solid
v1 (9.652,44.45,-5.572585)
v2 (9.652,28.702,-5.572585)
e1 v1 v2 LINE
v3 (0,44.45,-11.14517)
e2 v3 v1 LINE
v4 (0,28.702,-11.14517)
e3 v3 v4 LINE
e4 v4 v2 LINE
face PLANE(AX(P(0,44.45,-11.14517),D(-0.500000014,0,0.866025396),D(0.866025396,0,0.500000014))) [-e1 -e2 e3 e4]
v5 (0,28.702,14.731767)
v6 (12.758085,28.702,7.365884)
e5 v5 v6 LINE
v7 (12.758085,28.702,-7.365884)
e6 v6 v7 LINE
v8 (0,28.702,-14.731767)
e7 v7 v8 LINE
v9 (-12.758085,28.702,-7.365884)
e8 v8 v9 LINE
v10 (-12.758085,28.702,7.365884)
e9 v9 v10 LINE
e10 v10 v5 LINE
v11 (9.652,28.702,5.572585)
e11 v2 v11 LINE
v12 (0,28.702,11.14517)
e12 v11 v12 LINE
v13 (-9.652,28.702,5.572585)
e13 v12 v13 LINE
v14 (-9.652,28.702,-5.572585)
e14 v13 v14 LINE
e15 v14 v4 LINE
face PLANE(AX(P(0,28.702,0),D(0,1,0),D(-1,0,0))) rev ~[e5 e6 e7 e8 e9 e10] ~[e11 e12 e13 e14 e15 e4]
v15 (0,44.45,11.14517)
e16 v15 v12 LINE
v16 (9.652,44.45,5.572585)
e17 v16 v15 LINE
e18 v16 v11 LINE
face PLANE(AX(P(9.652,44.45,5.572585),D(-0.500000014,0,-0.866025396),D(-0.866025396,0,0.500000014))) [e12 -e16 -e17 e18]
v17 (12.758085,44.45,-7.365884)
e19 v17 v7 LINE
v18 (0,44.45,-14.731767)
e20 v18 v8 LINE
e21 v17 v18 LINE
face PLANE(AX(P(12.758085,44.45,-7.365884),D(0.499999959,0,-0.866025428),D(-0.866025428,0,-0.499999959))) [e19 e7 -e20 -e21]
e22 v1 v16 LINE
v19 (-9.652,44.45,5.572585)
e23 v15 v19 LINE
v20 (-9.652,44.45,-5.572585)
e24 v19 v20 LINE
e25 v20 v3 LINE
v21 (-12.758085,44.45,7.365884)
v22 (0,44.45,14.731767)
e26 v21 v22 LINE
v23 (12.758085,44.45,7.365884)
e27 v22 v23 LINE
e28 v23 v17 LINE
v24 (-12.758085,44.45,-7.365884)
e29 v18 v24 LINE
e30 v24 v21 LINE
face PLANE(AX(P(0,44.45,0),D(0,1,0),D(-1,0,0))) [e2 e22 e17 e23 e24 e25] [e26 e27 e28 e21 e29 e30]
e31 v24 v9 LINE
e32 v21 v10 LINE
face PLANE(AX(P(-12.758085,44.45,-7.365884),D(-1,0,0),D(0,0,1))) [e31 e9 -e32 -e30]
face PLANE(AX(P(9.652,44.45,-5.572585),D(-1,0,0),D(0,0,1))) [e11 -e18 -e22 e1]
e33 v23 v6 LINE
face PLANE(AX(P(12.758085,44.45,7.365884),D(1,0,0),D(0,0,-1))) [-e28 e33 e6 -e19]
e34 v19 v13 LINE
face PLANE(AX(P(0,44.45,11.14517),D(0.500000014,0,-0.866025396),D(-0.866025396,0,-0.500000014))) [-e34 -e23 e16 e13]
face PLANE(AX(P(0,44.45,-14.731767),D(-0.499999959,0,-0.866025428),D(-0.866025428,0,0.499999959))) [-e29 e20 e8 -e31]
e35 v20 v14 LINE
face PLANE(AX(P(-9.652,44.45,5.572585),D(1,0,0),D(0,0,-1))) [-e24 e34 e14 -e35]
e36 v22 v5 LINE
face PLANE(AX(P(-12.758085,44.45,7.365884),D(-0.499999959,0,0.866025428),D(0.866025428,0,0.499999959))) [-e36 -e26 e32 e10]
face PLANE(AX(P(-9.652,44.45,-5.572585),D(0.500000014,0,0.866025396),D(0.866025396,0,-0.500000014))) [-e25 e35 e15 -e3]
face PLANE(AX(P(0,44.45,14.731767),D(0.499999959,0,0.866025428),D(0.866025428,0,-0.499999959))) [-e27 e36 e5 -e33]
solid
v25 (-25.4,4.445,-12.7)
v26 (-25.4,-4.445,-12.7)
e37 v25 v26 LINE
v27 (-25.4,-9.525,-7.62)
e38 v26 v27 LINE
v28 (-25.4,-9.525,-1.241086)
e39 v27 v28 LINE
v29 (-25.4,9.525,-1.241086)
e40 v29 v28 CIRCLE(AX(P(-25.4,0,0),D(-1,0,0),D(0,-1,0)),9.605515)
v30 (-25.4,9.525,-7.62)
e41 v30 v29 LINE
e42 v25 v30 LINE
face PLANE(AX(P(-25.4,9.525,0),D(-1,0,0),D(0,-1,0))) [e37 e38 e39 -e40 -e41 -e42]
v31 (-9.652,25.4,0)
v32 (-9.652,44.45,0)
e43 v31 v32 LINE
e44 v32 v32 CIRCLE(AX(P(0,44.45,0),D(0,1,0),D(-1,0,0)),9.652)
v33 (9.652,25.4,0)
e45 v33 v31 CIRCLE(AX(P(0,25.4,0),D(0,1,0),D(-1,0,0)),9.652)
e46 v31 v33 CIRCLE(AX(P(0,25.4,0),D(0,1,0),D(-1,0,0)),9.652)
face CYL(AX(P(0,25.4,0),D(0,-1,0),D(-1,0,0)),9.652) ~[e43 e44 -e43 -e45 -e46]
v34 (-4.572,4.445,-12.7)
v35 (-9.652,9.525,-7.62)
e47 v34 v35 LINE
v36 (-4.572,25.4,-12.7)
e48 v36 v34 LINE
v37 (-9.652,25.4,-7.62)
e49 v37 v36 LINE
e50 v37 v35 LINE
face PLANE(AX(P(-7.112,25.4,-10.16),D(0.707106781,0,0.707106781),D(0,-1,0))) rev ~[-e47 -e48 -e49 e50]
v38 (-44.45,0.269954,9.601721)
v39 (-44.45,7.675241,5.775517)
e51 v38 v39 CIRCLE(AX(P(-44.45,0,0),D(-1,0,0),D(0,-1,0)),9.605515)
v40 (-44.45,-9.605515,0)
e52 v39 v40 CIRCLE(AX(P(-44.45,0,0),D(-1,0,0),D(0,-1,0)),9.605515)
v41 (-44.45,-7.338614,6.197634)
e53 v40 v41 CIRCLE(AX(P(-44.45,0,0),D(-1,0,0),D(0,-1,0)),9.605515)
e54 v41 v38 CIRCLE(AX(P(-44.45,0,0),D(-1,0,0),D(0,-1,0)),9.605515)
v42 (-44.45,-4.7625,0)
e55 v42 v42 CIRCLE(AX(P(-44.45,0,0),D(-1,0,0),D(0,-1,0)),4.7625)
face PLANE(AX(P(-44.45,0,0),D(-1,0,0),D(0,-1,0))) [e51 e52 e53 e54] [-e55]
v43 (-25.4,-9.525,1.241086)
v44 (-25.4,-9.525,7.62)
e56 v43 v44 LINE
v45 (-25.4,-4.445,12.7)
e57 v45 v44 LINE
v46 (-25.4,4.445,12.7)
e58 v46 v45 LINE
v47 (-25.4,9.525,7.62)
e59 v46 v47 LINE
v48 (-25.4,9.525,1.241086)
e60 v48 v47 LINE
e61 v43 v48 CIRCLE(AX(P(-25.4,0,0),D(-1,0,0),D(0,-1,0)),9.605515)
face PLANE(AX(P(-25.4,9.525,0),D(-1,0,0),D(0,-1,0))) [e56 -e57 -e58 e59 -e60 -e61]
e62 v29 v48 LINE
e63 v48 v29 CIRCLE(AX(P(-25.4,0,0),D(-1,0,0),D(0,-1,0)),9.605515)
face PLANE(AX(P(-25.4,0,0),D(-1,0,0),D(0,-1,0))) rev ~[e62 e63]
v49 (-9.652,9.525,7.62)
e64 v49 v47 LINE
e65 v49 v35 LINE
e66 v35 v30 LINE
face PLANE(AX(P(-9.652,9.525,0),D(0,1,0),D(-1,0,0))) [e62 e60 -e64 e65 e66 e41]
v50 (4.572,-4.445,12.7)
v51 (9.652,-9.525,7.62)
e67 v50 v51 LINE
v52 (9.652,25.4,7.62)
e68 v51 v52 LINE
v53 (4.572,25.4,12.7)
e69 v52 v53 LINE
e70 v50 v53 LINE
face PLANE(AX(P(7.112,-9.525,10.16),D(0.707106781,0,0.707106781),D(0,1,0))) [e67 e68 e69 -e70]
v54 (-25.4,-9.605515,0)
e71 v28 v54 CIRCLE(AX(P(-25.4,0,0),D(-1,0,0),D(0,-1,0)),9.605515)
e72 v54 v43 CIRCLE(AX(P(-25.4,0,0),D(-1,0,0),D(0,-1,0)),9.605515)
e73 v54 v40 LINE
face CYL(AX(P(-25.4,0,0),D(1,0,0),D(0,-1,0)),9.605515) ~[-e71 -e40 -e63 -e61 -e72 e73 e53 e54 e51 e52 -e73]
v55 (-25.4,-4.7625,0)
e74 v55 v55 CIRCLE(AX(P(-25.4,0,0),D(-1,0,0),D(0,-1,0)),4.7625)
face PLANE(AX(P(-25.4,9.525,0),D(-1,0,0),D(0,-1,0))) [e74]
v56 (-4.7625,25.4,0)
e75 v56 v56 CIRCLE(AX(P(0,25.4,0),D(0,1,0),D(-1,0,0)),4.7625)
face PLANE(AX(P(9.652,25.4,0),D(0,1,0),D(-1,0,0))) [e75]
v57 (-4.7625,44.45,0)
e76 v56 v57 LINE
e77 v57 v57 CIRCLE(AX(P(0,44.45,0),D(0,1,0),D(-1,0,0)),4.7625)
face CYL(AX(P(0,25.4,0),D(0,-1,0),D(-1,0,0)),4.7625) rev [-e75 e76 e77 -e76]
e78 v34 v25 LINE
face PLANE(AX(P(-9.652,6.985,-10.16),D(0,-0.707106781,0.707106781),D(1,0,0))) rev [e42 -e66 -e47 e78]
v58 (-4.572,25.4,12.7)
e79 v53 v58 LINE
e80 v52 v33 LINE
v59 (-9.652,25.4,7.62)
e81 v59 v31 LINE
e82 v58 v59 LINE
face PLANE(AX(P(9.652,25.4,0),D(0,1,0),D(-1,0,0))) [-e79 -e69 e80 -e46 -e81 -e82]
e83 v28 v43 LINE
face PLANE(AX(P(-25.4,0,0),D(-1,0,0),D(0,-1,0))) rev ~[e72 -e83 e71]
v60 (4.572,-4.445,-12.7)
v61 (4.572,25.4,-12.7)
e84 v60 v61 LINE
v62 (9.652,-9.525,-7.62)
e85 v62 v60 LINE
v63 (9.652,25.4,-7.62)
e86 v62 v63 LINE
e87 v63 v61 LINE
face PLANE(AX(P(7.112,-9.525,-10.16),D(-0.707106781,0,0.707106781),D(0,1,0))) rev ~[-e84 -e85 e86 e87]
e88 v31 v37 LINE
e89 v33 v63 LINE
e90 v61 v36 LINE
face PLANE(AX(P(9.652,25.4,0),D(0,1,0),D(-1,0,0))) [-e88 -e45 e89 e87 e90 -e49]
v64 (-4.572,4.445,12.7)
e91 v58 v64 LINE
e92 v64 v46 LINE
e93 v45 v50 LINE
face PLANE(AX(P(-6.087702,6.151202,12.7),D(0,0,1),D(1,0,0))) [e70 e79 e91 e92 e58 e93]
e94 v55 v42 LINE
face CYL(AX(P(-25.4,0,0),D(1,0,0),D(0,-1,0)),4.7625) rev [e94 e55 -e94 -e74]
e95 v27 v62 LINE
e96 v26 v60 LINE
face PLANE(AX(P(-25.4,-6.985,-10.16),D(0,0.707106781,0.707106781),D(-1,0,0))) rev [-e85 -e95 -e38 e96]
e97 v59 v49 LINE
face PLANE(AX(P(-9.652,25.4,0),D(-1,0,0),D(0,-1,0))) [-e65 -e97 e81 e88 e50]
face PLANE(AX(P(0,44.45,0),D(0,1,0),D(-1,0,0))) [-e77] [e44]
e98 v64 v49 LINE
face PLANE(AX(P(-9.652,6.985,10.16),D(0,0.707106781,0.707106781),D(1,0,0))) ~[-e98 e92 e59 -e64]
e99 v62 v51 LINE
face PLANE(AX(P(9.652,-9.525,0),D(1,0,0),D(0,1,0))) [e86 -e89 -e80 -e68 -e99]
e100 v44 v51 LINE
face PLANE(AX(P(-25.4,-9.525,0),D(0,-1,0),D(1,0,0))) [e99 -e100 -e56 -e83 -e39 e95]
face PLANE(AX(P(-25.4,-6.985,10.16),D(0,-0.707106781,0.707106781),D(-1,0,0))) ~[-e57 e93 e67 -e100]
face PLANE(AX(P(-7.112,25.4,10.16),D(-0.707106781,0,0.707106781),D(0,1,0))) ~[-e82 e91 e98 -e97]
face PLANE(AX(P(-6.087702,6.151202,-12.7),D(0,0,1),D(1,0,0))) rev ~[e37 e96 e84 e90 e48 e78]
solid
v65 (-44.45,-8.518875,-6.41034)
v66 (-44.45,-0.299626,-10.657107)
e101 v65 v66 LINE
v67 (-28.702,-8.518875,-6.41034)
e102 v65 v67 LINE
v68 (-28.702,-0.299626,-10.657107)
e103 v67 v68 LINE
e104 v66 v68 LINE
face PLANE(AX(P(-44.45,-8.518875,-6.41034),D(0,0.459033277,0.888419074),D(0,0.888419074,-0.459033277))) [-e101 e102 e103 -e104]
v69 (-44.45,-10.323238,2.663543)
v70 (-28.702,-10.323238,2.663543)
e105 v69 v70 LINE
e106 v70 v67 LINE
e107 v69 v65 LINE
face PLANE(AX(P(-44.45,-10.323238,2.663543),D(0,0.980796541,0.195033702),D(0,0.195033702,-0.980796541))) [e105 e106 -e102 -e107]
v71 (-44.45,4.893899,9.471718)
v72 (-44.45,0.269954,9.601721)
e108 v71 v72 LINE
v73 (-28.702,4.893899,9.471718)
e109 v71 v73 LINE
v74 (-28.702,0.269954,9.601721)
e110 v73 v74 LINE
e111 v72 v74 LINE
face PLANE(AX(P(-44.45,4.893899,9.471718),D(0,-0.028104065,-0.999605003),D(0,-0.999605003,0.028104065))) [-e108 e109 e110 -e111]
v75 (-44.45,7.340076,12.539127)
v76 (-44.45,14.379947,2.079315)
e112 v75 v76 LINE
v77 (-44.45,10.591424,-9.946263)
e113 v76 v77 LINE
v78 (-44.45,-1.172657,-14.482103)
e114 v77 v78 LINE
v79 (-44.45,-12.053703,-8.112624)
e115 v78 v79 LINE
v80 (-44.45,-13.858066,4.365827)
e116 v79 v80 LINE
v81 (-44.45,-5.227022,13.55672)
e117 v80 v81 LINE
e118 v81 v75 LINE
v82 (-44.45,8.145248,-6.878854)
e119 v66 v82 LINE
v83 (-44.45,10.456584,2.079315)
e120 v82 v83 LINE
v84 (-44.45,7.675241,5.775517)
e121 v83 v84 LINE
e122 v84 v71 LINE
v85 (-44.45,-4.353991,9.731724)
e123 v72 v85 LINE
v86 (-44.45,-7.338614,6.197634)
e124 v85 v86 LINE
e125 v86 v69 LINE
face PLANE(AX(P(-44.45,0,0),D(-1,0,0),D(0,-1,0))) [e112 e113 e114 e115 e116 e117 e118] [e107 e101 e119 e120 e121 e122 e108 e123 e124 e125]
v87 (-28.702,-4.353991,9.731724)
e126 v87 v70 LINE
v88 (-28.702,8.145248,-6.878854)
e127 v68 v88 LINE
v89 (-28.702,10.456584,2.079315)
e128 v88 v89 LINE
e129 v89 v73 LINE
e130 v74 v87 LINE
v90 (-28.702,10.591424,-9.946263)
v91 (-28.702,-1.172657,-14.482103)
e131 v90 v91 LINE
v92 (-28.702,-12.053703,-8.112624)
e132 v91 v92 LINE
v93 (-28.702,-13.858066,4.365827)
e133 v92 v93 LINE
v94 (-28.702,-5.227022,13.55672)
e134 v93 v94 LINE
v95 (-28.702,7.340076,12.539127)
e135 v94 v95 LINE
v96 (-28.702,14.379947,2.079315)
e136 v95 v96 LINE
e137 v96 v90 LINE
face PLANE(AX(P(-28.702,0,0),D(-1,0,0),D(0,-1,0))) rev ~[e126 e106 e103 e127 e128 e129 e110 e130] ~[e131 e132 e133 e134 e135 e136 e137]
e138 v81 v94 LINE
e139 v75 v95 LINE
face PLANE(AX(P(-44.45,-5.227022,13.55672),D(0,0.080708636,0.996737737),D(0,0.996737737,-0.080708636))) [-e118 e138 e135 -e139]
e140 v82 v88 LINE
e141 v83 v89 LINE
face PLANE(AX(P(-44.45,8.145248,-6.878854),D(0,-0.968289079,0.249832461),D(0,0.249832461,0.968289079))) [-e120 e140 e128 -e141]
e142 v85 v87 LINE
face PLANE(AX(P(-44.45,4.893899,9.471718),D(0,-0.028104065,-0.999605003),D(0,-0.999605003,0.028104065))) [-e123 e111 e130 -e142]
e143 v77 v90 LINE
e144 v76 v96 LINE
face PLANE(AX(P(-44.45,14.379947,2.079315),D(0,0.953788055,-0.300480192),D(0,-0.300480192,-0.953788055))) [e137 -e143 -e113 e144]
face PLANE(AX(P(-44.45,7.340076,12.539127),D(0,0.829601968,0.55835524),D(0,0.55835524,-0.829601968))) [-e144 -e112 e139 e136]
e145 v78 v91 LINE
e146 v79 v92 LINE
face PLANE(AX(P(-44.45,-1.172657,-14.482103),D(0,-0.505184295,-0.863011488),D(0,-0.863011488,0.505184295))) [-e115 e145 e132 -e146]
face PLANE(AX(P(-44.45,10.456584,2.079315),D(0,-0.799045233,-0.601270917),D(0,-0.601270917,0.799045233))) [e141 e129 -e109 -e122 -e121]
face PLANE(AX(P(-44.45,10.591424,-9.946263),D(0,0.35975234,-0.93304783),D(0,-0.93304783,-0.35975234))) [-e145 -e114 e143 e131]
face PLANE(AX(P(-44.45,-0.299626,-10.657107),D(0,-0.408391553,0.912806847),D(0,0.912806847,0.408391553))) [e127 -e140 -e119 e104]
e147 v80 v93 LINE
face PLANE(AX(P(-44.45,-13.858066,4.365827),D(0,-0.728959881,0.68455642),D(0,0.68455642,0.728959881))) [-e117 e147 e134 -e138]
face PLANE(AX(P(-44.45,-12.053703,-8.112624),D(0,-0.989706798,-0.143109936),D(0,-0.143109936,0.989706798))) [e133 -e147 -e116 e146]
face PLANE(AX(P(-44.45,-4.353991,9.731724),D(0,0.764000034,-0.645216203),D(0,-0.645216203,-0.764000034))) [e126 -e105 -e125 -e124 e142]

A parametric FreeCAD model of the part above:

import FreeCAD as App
import Part
import Sketcher

V = App.Vector
Q = App.Units.Quantity


def edges_at(feature, points):
    """Names of the edges that pass closest to the given points."""
    edges = feature.Shape.Edges
    near = lambda p: min(range(len(edges)), key=lambda i: edges[i].distToShape(Part.Vertex(*p))[0])
    return sorted({f"Edge{near(p) + 1}" for p in points})


def add_polygon(sketch, points):
    """Adds a closed chain of lines whose ends are joined by coincident constraints."""
    first, n = sketch.GeometryCount, len(points)
    for a, b in zip(points, points[1:] + points[:1]):
        sketch.addGeometry(Part.LineSegment(App.Vector(*a, 0), App.Vector(*b, 0)), False)
    for i in range(n):
        sketch.addConstraint(Sketcher.Constraint("Coincident", first + i, 2, first + (i + 1) % n, 1))

doc = App.newDocument("Part")
body = doc.addObject("PartDesign::Body", "Body")
body.AllowCompound = True

sketch1 = body.newObject("Sketcher::SketchObject", "Sketch")
sketch1.AttachmentSupport = (doc.getObject("XY_Plane"), [""])
sketch1.MapMode = "FlatFace"
add_polygon(sketch1, [(-9.652, 9.525), (-25.4, 9.525), (-25.4, -9.525), (9.652, -9.525), (9.652, 25.4), (-9.652, 25.4)])
sketch1.addConstraint(Sketcher.Constraint("Horizontal", 0))
sketch1.addConstraint(Sketcher.Constraint("Vertical", 1))
sketch1.addConstraint(Sketcher.Constraint("Horizontal", 2))
sketch1.addConstraint(Sketcher.Constraint("Vertical", 3))
sketch1.addConstraint(Sketcher.Constraint("Horizontal", 4))
sketch1.addConstraint(Sketcher.Constraint("Vertical", 5))
sketch1.addConstraint(Sketcher.Constraint("Symmetric", 2, 2, 5, 2, -1, 1))
sketch1.addConstraint(Sketcher.Constraint("DistanceX", 0, 2, -1, 1, Q("1 in")))
sketch1.addConstraint(Sketcher.Constraint("DistanceY", -1, 1, 3, 2, Q("1 in")))
sketch1.addConstraint(Sketcher.Constraint("DistanceX", 0, 2, 0, 1, Q("0.62 in")))
sketch1.addConstraint(Sketcher.Constraint("DistanceY", 1, 2, 1, 1, Q("0.75 in")))
pad1 = body.newObject("PartDesign::Pad", "Pad")
pad1.Profile = sketch1
pad1.Length = Q("1 in")
pad1.Midplane = True

sketch2 = body.newObject("Sketcher::SketchObject", "Sketch001")
sketch2.AttachmentSupport = (doc.getObject("YZ_Plane"), [""])
sketch2.MapMode = "FlatFace"
sketch2.AttachmentOffset = App.Placement(V(0, 0, -1 * 25.4), App.Rotation())
sketch2.addGeometry(Part.Circle(V(0, 0, 0), V(0, 0, 1), 9.605515), False)
sketch2.addGeometry(Part.Circle(V(0, 0, 0), V(0, 0, 1), 4.7625), False)
sketch2.addConstraint(Sketcher.Constraint("Coincident", 0, 3, -1, 1))
sketch2.addConstraint(Sketcher.Constraint("Coincident", 1, 3, -1, 1))
sketch2.addConstraint(Sketcher.Constraint("Diameter", 1, Q("0.375 in")))
sketch2.addConstraint(Sketcher.Constraint("Diameter", 0, 19.21103))
pad2 = body.newObject("PartDesign::Pad", "Pad001")
pad2.Profile = sketch2
pad2.Length = Q("0.75 in")
pad2.Reversed = True

sketch3 = body.newObject("Sketcher::SketchObject", "Sketch002")
sketch3.AttachmentSupport = (doc.getObject("YZ_Plane"), [""])
sketch3.MapMode = "FlatFace"
sketch3.AttachmentOffset = App.Placement(V(0, 0, -1.75 * 25.4), App.Rotation())
add_polygon(sketch3, [(-12.053703, -8.112624), (-13.858066, 4.365827), (-5.227022, 13.55672), (7.340076, 12.539127), (14.379947, 2.079315), (10.591424, -9.946263), (-1.172657, -14.482103)])
add_polygon(sketch3, [(4.893899, 9.471718), (-4.353991, 9.731724), (-10.323238, 2.663543), (-8.518875, -6.41034), (-0.299626, -10.657107), (8.145248, -6.878854), (10.456584, 2.079315)])
sketch3.addConstraint(Sketcher.Constraint("DistanceX", -1, 1, 13, 2, 4.893899))
sketch3.addConstraint(Sketcher.Constraint("DistanceY", 0, 2, 2, 2, 8.1733))
sketch3.addConstraint(Sketcher.Constraint("DistanceX", 11, 2, 3, 2, 6.234699))
sketch3.addConstraint(Sketcher.Constraint("Distance", 0, 12.60823))
sketch3.addConstraint(Sketcher.Constraint("Distance", 1, 12.608229))
sketch3.addConstraint(Sketcher.Constraint("Distance", 2, 12.608229))
sketch3.addConstraint(Sketcher.Constraint("Distance", 3, 12.608229))
sketch3.addConstraint(Sketcher.Constraint("Distance", 4, 12.608229))
sketch3.addConstraint(Sketcher.Constraint("Distance", 5, 12.608229))
sketch3.addConstraint(Sketcher.Constraint("Distance", 6, 12.608228))
sketch3.addConstraint(Sketcher.Constraint("DistanceX", 1, 2, -1, 1, 5.227022))
sketch3.addConstraint(Sketcher.Constraint("DistanceY", -1, 1, 1, 2, 13.55672))
sketch3.addConstraint(Sketcher.Constraint("DistanceX", 7, 2, -1, 1, 4.353991))
sketch3.addConstraint(Sketcher.Constraint("DistanceY", 9, 2, -1, 1, 6.41034))
sketch3.addConstraint(Sketcher.Constraint("DistanceX", 2, 2, 3, 2, 7.039871))
sketch3.addConstraint(Sketcher.Constraint("DistanceX", 1, 2, 3, 2, 19.606969))
sketch3.addConstraint(Sketcher.Constraint("DistanceX", 2, 2, 4, 2, 3.251348))
sketch3.addConstraint(Sketcher.Constraint("DistanceX", 5, 2, 4, 2, 11.764081))
sketch3.addConstraint(Sketcher.Constraint("DistanceY", 6, 2, 7, 2, 17.844348))
sketch3.addConstraint(Sketcher.Constraint("DistanceX", 0, 2, 8, 2, 3.534828))
sketch3.addConstraint(Sketcher.Constraint("DistanceY", 8, 2, 7, 2, 7.068181))
sketch3.addConstraint(Sketcher.Constraint("DistanceX", 6, 2, 9, 2, 3.534828))
sketch3.addConstraint(Sketcher.Constraint("DistanceX", 5, 2, 10, 2, 0.873031))
sketch3.addConstraint(Sketcher.Constraint("DistanceY", 10, 2, 8, 2, 13.32065))
sketch3.addConstraint(Sketcher.Constraint("DistanceY", 4, 2, 11, 2, 3.067409))
sketch3.addConstraint(Sketcher.Constraint("DistanceY", 11, 2, 12, 2, 8.958169))
sketch3.addConstraint(Sketcher.Constraint("DistanceX", 12, 2, 4, 2, 0.13484))
sketch3.addConstraint(Sketcher.Constraint("DistanceY", 13, 2, 2, 2, 3.067409))
pad3 = body.newObject("PartDesign::Pad", "Pad002")
pad3.Profile = sketch3
pad3.Length = Q("0.62 in")

sketch4 = body.newObject("Sketcher::SketchObject", "Sketch003")
sketch4.AttachmentSupport = (doc.getObject("XZ_Plane"), [""])
sketch4.MapMode = "FlatFace"
sketch4.AttachmentOffset = App.Placement(V(0, 0, -1 * 25.4), App.Rotation())
sketch4.addGeometry(Part.Circle(V(0, 0, 0), V(0, 0, 1), 9.652), False)
sketch4.addGeometry(Part.Circle(V(0, 0, 0), V(0, 0, 1), 4.7625), False)
sketch4.addConstraint(Sketcher.Constraint("Coincident", 0, 3, -1, 1))
sketch4.addConstraint(Sketcher.Constraint("Coincident", 1, 3, -1, 1))
sketch4.addConstraint(Sketcher.Constraint("Diameter", 0, Q("0.76 in")))
sketch4.addConstraint(Sketcher.Constraint("Diameter", 1, Q("0.375 in")))
pad4 = body.newObject("PartDesign::Pad", "Pad003")
pad4.Profile = sketch4
pad4.Length = Q("0.75 in")
pad4.Reversed = True
doc.recompute()

chamfer = body.newObject("PartDesign::Chamfer", "Chamfer")
chamfer.Base = (pad4, edges_at(pad4, [
    (-17.526, 9.525, 12.7),
    (-7.874, -9.525, 12.7),
    (-9.652, 17.462, 12.7),
    (9.652, 7.938, 12.7),
    (9.652, 7.938, -12.7),
    (-17.526, 9.525, -12.7),
    (-9.652, 17.462, -12.7),
    (-7.874, -9.525, -12.7),
]))
chamfer.Size = Q("0.2 in")
body2 = doc.addObject("PartDesign::Body", "Body001")

sketch5 = body2.newObject("Sketcher::SketchObject", "Sketch004")
sketch5.AttachmentSupport = (doc.getObject("XZ_Plane001"), [""])
sketch5.MapMode = "FlatFace"
sketch5.AttachmentOffset = App.Placement(V(0, 0, -1.75 * 25.4), App.Rotation())
add_polygon(sketch5, [(-12.758085, -7.365884), (-12.758085, 7.365884), (0, 14.731767), (12.758085, 7.365884), (12.758085, -7.365884), (0, -14.731767)])
add_polygon(sketch5, [(9.652, 5.572585), (0, 11.14517), (-9.652, 5.572585), (-9.652, -5.572585), (0, -11.14517), (9.652, -5.572585)])
sketch5.addConstraint(Sketcher.Constraint("Vertical", 0))
sketch5.addConstraint(Sketcher.Constraint("Vertical", 3))
sketch5.addConstraint(Sketcher.Constraint("Vertical", 8))
sketch5.addConstraint(Sketcher.Constraint("Vertical", 11))
sketch5.addConstraint(Sketcher.Constraint("Symmetric", 0, 2, 3, 2, -1, 1))
sketch5.addConstraint(Sketcher.Constraint("Symmetric", 1, 2, 4, 2, -1, 1))
sketch5.addConstraint(Sketcher.Constraint("Symmetric", 6, 2, 9, 2, -1, 1))
sketch5.addConstraint(Sketcher.Constraint("Symmetric", 7, 2, 10, 2, -1, 1))
sketch5.addConstraint(Sketcher.Constraint("PointOnObject", 1, 2, -2))
sketch5.addConstraint(Sketcher.Constraint("PointOnObject", 6, 2, -2))
sketch5.addConstraint(Sketcher.Constraint("Parallel", 2, 5))
sketch5.addConstraint(Sketcher.Constraint("Parallel", 5, 6))
sketch5.addConstraint(Sketcher.Constraint("Parallel", 4, 7))
sketch5.addConstraint(Sketcher.Constraint("Parallel", 6, 9))
sketch5.addConstraint(Sketcher.Constraint("Horizontal", 0, 2, 2, 2))
sketch5.addConstraint(Sketcher.Constraint("Angle", 1, Q("29.999997 deg")))
sketch5.addConstraint(Sketcher.Constraint("DistanceX", 7, 2, -1, 1, Q("0.38 in")))
sketch5.addConstraint(Sketcher.Constraint("DistanceY", 0, 1, 0, 2, 14.731768))
sketch5.addConstraint(Sketcher.Constraint("DistanceY", 8, 2, 8, 1, 11.14517))
sketch5.addConstraint(Sketcher.Constraint("DistanceX", 0, 2, 2, 2, 25.51617))
pad5 = body2.newObject("PartDesign::Pad", "Pad004")
pad5.Profile = sketch5
pad5.Length = Q("0.62 in")

doc.recompute()
